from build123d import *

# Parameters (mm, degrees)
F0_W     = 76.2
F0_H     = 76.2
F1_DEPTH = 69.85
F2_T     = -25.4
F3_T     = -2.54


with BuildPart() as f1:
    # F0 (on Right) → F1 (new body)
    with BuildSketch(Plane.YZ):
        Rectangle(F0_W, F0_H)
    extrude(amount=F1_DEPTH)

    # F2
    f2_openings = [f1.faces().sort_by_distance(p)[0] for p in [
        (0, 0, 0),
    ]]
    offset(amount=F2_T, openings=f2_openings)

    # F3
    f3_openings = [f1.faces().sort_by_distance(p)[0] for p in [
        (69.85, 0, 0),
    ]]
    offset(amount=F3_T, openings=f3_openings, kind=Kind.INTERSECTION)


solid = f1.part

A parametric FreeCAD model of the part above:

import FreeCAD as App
import Part
import Sketcher

V = App.Vector
Q = App.Units.Quantity


def faces_at(feature, points):
    """Names of the faces that lie closest to the given points."""
    faces = feature.Shape.Faces
    near = lambda p: min(range(len(faces)), key=lambda i: faces[i].distToShape(Part.Vertex(*p))[0])
    return sorted({f"Face{near(p) + 1}" for p in points})

doc = App.newDocument("Part")
body = doc.addObject("PartDesign::Body", "Body")

# Sketch on YZ plane
sketch1 = body.newObject("Sketcher::SketchObject", "Sketch")
sketch1.AttachmentSupport = (doc.getObject("YZ_Plane"), [""])
sketch1.MapMode = "FlatFace"
sketch1.addGeometry(Part.LineSegment(V(-38.1, 38.1, 0), V(-38.1, -38.1, 0)), False)
sketch1.addGeometry(Part.LineSegment(V(-38.1, -38.1, 0), V(38.1, -38.1, 0)), False)
sketch1.addGeometry(Part.LineSegment(V(38.1, -38.1, 0), V(38.1, 38.1, 0)), False)
sketch1.addGeometry(Part.LineSegment(V(38.1, 38.1, 0), V(-38.1, 38.1, 0)), False)
sketch1.addConstraint(Sketcher.Constraint("Coincident", 0, 2, 1, 1))
sketch1.addConstraint(Sketcher.Constraint("Coincident", 1, 2, 2, 1))
sketch1.addConstraint(Sketcher.Constraint("Coincident", 2, 2, 3, 1))
sketch1.addConstraint(Sketcher.Constraint("Coincident", 3, 2, 0, 1))
sketch1.addConstraint(Sketcher.Constraint("Vertical", 0))
sketch1.addConstraint(Sketcher.Constraint("Horizontal", 1))
sketch1.addConstraint(Sketcher.Constraint("Vertical", 2))
sketch1.addConstraint(Sketcher.Constraint("Horizontal", 3))
sketch1.addConstraint(Sketcher.Constraint("Symmetric", 0, 2, 2, 2, -1, 1))
sketch1.addConstraint(Sketcher.Constraint("Equal", 3, 0))
sketch1.addConstraint(Sketcher.Constraint("DistanceX", 1, 1, 1, 2, Q("3 in")))
pad1 = body.newObject("PartDesign::Pad", "Pad")
pad1.Profile = sketch1
pad1.Length = Q("2.75 in")
doc.recompute()

thickness = body.newObject("PartDesign::Thickness", "Thickness")
thickness.Base = (pad1, faces_at(pad1, [(0, 0, 0)]))
thickness.Value = Q("1 in")
thickness.Reversed = True
thickness.Join = "Arc"
doc.recompute()

thickness2 = body.newObject("PartDesign::Thickness", "Thickness001")
thickness2.Base = (thickness, faces_at(thickness, [(69.85, 0, 0)]))
thickness2.Value = Q("0.1 in")
thickness2.Reversed = True
thickness2.Join = "Intersection"

doc.recompute()
